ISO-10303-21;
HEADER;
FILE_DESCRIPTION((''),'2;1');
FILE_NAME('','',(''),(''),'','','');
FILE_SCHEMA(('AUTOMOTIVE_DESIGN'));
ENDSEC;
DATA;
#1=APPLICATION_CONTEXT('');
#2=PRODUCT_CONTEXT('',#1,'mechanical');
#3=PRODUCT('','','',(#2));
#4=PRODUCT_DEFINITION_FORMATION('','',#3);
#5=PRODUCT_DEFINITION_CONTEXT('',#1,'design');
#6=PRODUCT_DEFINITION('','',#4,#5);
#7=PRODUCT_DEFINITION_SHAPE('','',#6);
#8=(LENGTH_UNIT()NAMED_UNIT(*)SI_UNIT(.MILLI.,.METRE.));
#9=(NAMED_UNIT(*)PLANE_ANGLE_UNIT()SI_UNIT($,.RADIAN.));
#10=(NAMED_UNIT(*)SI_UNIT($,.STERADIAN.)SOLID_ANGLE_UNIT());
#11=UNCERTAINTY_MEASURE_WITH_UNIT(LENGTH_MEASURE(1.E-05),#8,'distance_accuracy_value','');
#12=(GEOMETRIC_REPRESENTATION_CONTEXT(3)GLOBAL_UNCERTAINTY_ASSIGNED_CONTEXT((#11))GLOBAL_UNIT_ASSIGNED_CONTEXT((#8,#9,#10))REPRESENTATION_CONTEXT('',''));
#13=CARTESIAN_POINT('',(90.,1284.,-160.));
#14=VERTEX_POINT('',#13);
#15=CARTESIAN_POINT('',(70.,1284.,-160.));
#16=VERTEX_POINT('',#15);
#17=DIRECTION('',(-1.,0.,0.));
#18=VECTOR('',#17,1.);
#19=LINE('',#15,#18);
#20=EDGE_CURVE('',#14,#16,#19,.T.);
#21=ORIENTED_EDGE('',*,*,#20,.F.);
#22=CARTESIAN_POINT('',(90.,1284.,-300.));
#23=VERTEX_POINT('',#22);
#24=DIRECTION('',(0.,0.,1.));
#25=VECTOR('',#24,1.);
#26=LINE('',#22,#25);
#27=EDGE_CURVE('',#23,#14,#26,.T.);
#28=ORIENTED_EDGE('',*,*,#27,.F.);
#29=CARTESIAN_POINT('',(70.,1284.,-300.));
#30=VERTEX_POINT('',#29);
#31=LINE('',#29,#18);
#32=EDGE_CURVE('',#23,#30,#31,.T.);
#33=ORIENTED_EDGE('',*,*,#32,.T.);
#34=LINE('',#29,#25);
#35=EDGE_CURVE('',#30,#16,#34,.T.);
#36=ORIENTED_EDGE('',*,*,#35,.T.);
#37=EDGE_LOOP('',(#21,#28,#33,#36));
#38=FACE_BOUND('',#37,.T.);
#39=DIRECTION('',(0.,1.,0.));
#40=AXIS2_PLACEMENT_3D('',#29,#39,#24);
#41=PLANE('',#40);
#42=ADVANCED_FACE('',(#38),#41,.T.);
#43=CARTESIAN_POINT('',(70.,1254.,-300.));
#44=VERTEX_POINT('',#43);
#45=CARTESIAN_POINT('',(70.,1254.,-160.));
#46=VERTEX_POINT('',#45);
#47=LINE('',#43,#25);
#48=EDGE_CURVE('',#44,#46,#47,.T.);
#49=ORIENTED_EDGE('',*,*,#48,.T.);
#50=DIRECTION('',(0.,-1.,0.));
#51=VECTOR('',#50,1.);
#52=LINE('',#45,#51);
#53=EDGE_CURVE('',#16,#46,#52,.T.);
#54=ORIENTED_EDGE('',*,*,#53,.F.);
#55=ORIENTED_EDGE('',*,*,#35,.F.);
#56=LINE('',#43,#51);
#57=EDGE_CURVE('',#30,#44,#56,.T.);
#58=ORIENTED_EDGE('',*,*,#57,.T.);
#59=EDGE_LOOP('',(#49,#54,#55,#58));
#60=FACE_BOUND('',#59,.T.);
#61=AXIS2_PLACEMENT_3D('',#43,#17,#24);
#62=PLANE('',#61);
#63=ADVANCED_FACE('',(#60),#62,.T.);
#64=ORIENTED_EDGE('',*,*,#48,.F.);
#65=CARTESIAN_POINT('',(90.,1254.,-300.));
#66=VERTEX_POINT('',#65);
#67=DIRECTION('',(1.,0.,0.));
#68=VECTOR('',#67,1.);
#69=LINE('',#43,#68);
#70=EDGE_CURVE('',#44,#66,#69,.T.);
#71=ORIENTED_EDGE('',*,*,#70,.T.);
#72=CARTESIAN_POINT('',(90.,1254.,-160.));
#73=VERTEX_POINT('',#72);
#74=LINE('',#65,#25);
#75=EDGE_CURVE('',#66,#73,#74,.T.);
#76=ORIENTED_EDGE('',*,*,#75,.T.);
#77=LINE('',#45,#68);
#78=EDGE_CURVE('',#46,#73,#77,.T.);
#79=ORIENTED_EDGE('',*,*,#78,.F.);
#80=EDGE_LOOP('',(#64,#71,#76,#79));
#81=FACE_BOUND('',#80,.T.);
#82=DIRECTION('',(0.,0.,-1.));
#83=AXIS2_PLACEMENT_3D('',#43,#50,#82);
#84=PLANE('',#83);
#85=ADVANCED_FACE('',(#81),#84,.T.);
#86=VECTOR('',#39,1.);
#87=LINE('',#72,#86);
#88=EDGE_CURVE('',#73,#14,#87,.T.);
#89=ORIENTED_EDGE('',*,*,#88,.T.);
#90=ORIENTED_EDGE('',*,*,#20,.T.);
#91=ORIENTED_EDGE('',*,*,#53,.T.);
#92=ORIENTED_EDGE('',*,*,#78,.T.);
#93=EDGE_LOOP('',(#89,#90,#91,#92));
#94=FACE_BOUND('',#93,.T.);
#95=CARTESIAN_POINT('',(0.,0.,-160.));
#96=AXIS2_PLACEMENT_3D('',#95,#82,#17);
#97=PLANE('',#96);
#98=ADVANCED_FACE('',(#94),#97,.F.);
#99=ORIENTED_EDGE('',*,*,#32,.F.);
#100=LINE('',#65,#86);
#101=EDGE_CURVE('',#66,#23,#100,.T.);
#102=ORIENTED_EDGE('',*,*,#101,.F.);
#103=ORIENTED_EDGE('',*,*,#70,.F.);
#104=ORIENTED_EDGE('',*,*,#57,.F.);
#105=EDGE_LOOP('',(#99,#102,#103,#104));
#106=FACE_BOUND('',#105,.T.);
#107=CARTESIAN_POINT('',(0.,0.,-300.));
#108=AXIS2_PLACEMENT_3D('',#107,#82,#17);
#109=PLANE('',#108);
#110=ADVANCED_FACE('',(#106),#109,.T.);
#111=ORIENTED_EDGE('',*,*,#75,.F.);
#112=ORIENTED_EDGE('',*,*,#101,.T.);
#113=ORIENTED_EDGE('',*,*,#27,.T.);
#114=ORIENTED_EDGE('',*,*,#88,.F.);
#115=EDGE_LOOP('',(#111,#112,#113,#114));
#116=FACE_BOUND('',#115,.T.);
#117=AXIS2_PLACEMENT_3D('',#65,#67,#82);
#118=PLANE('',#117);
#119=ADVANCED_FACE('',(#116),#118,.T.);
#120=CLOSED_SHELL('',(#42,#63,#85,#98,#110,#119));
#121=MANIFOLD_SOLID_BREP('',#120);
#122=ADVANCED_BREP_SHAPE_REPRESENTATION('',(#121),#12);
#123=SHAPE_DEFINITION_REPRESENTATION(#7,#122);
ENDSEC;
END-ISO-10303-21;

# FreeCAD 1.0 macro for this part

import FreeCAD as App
import Part
import Sketcher
from FreeCAD import Vector

doc = App.newDocument("Part")
body = doc.addObject("PartDesign::Body", "Body")

# Sketch on XY plane
sketch1 = body.newObject("Sketcher::SketchObject", "Sketch")
sketch1.AttachmentSupport = (doc.getObject("XY_Plane"), [""])
sketch1.MapMode = "FlatFace"
sketch1.AttachmentOffset = App.Placement(Vector(0, 0, -160), App.Rotation())
sketch1.addGeometry([
    Part.LineSegment(Vector(70, 1284, 0), Vector(70, 1254, 0)),
    Part.LineSegment(Vector(70, 1254, 0), Vector(90, 1254, 0)),
    Part.LineSegment(Vector(90, 1254, 0), Vector(90, 1284, 0)),
    Part.LineSegment(Vector(90, 1284, 0), Vector(70, 1284, 0)),
], False)
sketch1.addConstraint([
    Sketcher.Constraint("Coincident", 0, 2, 1, 1),
    Sketcher.Constraint("Coincident", 1, 2, 2, 1),
    Sketcher.Constraint("Coincident", 2, 2, 3, 1),
    Sketcher.Constraint("Coincident", 3, 2, 0, 1),
    Sketcher.Constraint("Vertical", 0),
    Sketcher.Constraint("Horizontal", 1),
    Sketcher.Constraint("Vertical", 2),
    Sketcher.Constraint("Horizontal", 3),
    Sketcher.Constraint("DistanceX", 1, 1, 1, 2, 20.0),
    Sketcher.Constraint("DistanceY", 0, 2, 0, 1, 30.0),
    Sketcher.Constraint("DistanceX", -1, 1, 0, 2, 70.0),
    Sketcher.Constraint("DistanceY", -1, 1, 0, 2, 1254.0),
])
pad1 = body.newObject("PartDesign::Pad", "Pad")
pad1.Profile = sketch1
pad1.Length = 140
pad1.Reversed = True

doc.recompute()
